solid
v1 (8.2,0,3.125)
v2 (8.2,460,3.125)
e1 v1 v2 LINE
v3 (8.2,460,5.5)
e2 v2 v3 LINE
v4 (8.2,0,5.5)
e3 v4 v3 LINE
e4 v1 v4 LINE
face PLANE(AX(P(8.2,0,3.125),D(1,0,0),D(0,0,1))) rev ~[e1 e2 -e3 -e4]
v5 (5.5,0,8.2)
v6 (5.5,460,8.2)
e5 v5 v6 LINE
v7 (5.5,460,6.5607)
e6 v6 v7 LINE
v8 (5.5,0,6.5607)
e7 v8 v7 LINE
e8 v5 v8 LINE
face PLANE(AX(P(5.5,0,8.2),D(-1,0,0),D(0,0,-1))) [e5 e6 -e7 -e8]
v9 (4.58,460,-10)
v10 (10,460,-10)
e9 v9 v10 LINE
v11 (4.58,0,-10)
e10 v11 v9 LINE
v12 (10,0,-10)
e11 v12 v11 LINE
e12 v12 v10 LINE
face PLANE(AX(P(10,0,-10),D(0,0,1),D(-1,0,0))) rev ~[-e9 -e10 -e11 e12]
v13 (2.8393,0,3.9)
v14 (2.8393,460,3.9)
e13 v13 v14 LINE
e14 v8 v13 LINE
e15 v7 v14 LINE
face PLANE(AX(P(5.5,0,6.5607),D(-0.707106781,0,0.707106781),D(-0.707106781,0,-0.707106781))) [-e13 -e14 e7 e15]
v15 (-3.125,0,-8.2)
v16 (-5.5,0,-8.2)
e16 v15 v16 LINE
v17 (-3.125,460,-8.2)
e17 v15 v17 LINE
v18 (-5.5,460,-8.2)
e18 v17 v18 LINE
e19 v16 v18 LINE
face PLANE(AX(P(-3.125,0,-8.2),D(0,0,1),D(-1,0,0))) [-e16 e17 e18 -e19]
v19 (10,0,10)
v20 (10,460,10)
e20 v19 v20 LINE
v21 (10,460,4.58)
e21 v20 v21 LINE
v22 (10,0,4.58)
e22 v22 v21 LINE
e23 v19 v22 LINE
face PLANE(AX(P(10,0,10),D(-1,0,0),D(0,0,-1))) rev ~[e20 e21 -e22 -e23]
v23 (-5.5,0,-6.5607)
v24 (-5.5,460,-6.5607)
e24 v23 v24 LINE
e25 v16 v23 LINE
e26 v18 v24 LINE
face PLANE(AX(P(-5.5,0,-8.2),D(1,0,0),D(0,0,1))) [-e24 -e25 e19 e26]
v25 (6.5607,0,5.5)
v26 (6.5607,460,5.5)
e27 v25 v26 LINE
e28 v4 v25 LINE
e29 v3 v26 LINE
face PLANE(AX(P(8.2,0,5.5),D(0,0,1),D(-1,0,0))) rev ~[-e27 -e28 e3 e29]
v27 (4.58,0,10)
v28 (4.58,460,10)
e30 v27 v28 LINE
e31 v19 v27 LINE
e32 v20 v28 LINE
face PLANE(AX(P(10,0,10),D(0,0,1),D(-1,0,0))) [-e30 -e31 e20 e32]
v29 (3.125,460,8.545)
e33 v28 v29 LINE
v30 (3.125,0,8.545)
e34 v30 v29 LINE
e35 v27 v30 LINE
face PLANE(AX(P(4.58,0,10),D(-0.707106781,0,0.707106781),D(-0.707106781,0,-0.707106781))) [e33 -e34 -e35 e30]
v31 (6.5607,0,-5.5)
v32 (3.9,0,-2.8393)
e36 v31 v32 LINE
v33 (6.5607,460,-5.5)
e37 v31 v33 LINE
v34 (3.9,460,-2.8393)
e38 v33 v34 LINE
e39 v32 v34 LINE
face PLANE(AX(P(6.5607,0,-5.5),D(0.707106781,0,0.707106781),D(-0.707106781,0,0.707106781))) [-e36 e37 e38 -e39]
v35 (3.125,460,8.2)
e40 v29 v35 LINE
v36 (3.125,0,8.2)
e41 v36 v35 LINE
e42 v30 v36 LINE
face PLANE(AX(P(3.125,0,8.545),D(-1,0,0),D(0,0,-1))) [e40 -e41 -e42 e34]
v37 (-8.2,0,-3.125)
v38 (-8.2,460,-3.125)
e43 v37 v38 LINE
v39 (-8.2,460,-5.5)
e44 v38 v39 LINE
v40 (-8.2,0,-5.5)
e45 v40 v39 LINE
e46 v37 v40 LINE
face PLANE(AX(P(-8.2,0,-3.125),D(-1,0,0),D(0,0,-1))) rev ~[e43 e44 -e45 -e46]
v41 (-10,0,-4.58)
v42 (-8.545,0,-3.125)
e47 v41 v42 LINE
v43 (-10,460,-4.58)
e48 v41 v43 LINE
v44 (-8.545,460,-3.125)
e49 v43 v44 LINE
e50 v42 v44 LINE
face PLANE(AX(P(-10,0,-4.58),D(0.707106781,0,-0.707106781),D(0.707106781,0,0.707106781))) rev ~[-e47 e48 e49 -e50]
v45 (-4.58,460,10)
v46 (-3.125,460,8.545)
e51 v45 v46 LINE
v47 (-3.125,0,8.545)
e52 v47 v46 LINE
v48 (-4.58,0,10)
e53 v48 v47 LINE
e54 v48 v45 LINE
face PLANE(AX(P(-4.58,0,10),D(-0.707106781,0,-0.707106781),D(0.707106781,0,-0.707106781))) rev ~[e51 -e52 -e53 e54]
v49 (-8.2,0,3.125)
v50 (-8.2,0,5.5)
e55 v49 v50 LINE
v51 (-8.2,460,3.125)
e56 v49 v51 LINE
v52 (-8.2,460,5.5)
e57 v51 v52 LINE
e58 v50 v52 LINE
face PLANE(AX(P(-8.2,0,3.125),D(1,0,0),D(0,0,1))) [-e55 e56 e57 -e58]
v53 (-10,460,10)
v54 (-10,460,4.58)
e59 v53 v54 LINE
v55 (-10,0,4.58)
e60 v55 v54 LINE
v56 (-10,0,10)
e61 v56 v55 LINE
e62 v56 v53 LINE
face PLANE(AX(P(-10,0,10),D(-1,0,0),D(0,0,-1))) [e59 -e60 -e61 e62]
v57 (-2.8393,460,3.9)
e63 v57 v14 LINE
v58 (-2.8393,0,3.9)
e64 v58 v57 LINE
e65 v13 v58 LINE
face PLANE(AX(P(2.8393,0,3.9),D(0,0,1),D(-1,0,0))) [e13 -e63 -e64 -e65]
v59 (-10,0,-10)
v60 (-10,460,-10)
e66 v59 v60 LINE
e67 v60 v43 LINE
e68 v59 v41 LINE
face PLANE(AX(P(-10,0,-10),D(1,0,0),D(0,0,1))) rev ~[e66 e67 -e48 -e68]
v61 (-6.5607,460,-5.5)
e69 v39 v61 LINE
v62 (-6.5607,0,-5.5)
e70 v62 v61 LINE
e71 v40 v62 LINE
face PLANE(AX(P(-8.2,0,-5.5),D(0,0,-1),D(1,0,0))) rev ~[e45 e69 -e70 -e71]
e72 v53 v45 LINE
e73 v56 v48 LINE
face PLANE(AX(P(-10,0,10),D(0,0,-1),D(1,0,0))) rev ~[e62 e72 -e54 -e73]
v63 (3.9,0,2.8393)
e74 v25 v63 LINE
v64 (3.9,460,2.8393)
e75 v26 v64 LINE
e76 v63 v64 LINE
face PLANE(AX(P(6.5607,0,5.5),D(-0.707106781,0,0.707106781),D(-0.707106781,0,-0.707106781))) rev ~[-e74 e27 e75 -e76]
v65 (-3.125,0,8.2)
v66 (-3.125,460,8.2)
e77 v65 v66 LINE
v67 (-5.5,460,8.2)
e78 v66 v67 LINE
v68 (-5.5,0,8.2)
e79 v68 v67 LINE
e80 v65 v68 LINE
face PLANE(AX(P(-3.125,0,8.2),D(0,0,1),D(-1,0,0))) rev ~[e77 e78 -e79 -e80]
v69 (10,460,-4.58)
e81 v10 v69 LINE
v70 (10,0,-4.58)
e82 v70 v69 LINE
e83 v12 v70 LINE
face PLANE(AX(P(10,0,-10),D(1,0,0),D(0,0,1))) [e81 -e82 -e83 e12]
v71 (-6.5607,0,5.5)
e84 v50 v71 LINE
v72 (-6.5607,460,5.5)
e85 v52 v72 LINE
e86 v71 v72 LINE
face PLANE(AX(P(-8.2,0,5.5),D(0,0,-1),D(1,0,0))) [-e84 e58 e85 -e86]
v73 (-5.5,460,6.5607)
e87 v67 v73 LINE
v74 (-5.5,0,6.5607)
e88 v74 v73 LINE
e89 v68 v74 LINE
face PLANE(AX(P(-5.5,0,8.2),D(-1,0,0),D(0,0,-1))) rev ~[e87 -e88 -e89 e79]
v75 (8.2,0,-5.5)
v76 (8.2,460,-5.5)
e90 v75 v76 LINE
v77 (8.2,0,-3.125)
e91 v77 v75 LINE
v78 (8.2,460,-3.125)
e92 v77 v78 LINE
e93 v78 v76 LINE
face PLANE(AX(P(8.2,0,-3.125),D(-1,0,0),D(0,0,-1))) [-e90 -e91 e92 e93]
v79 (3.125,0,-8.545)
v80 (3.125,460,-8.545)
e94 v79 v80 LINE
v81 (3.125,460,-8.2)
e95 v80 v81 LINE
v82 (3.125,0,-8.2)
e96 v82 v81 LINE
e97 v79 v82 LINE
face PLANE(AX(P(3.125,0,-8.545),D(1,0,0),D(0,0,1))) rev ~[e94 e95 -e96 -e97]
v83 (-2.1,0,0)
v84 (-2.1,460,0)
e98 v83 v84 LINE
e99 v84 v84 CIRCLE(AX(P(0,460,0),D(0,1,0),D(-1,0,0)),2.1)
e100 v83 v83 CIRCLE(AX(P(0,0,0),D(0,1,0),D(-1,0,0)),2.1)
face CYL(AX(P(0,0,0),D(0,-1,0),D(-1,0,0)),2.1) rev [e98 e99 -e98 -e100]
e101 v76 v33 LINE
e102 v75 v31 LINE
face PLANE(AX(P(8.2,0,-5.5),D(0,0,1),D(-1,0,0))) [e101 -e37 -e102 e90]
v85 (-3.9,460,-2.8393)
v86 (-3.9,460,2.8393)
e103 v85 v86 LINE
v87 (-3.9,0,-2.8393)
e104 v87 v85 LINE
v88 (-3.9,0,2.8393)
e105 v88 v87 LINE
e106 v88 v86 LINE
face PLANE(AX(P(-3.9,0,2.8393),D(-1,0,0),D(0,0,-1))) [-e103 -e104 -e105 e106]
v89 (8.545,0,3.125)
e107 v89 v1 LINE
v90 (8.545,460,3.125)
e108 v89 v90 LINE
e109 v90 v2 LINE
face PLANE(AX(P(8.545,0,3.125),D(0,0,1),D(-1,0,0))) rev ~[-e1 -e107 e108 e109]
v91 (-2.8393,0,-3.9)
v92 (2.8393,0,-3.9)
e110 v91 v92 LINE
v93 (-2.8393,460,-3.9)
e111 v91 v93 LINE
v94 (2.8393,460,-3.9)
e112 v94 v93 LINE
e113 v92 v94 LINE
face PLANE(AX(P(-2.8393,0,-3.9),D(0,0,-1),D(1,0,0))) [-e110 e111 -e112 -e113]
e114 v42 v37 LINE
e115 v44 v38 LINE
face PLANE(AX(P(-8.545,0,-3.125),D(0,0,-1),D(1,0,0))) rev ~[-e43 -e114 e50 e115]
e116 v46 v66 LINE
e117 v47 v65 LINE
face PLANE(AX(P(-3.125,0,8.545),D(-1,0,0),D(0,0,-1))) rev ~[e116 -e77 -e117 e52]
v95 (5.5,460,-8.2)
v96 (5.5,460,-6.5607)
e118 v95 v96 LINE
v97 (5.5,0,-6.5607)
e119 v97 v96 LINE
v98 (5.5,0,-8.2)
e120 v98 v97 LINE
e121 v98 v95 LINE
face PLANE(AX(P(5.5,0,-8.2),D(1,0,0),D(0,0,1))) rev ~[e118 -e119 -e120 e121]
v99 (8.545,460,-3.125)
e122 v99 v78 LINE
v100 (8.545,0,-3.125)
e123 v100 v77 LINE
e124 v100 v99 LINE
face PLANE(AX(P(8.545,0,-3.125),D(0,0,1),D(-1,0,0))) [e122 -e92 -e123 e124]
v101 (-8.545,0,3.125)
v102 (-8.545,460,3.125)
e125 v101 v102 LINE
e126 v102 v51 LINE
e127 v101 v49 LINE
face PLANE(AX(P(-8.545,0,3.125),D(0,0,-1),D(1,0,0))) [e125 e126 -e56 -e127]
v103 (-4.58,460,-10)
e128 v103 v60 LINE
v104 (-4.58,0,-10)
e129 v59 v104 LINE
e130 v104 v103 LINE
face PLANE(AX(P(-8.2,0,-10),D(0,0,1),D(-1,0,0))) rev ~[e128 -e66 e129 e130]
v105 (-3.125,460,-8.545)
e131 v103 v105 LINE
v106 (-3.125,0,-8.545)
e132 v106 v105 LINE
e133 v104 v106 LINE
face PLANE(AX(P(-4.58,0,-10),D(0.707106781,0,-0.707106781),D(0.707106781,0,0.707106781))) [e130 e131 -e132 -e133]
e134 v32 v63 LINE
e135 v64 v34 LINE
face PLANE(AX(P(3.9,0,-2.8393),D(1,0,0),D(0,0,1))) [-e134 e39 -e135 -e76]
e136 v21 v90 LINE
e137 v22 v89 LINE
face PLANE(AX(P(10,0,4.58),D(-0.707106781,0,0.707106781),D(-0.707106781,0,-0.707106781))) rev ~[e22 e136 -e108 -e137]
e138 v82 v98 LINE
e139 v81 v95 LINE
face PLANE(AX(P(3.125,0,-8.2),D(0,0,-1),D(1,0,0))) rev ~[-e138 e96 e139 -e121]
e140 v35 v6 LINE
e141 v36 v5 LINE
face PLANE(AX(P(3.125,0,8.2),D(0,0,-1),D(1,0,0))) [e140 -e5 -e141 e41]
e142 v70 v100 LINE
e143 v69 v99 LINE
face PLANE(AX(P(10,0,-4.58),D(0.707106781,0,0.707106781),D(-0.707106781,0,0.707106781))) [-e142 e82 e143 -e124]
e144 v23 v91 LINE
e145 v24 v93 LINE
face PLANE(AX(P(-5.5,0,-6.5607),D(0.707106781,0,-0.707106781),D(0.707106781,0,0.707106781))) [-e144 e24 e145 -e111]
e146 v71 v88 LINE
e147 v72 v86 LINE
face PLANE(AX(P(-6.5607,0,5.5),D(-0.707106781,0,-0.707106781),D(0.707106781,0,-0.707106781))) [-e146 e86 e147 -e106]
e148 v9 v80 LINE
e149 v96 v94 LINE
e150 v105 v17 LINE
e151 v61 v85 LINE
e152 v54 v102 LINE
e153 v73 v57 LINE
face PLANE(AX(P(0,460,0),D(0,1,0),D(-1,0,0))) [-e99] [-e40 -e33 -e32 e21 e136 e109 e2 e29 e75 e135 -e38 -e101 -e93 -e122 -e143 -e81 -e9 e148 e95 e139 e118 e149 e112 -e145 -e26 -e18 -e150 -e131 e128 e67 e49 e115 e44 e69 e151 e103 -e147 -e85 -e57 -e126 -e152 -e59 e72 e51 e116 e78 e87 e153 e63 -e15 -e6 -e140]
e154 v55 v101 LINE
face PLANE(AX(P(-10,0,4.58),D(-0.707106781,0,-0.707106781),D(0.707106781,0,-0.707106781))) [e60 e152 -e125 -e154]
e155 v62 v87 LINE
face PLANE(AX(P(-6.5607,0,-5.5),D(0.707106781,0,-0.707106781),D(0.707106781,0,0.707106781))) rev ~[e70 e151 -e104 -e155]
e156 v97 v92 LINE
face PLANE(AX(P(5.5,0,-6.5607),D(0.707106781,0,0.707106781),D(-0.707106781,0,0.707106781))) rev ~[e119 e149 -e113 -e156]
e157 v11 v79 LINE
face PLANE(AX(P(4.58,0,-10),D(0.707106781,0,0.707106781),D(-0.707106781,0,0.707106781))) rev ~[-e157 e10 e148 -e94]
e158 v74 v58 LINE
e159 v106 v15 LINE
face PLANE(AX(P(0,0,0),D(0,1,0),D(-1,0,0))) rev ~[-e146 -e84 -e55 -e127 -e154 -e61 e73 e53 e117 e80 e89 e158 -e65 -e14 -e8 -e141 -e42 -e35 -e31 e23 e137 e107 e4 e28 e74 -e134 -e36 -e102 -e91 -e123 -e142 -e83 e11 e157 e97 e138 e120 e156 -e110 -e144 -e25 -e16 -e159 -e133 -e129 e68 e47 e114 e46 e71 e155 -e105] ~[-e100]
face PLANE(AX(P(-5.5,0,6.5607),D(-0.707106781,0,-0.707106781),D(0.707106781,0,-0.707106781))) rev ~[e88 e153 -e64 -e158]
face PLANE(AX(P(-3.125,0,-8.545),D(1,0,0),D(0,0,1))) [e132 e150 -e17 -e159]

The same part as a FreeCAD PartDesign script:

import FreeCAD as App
import Part
import Sketcher
from FreeCAD import Vector
Q = App.Units.Quantity


def add_polygon(sketch, points):
    """Adds a closed chain of lines whose ends are joined by coincident constraints."""
    first, n = sketch.GeometryCount, len(points)
    for a, b in zip(points, points[1:] + points[:1]):
        sketch.addGeometry(Part.LineSegment(App.Vector(*a, 0), App.Vector(*b, 0)), False)
    for i in range(n):
        sketch.addConstraint(Sketcher.Constraint("Coincident", first + i, 2, first + (i + 1) % n, 1))

doc = App.newDocument("Part")
body = doc.addObject("PartDesign::Body", "Body")

sketch1 = body.newObject("Sketcher::SketchObject", "Sketch")
sketch1.AttachmentSupport = (doc.getObject("XZ_Plane"), [""])
sketch1.MapMode = "FlatFace"
add_polygon(sketch1, [(10, -4.58), (10, -10), (4.58, -10), (3.125, -8.545), (3.125, -8.2), (5.5, -8.2), (5.5, -6.5607), (2.8393, -3.9), (-2.8393, -3.9), (-5.5, -6.5607), (-5.5, -8.2), (-3.125, -8.2), (-3.125, -8.545), (-4.58, -10), (-10, -10), (-10, -4.58), (-8.545, -3.125), (-8.2, -3.125), (-8.2, -5.5), (-6.5607, -5.5), (-3.9, -2.8393), (-3.9, 2.8393), (-6.5607, 5.5), (-8.2, 5.5), (-8.2, 3.125), (-8.545, 3.125), (-10, 4.58), (-10, 10), (-4.58, 10), (-3.125, 8.545), (-3.125, 8.2), (-5.5, 8.2), (-5.5, 6.5607), (-2.8393, 3.9), (2.8393, 3.9), (5.5, 6.5607), (5.5, 8.2), (3.125, 8.2), (3.125, 8.545), (4.58, 10), (10, 10), (10, 4.58), (8.545, 3.125), (8.2, 3.125), (8.2, 5.5), (6.5607, 5.5), (3.9, 2.8393), (3.9, -2.8393), (6.5607, -5.5), (8.2, -5.5), (8.2, -3.125), (8.545, -3.125)])
sketch1.addGeometry(Part.Circle(Vector(0, 0, 0), Vector(0, 0, 1), 2.1), False)
sketch1.addConstraint([
    Sketcher.Constraint("Vertical", 0),
    Sketcher.Constraint("Horizontal", 1),
    Sketcher.Constraint("Vertical", 3),
    Sketcher.Constraint("Horizontal", 4),
    Sketcher.Constraint("Vertical", 5),
    Sketcher.Constraint("Horizontal", 7),
    Sketcher.Constraint("Vertical", 9),
    Sketcher.Constraint("Horizontal", 10),
    Sketcher.Constraint("Vertical", 11),
    Sketcher.Constraint("Horizontal", 13),
    Sketcher.Constraint("Vertical", 14),
    Sketcher.Constraint("Horizontal", 16),
    Sketcher.Constraint("Vertical", 17),
    Sketcher.Constraint("Horizontal", 18),
    Sketcher.Constraint("Vertical", 20),
    Sketcher.Constraint("Horizontal", 22),
    Sketcher.Constraint("Vertical", 23),
    Sketcher.Constraint("Horizontal", 24),
    Sketcher.Constraint("Vertical", 26),
    Sketcher.Constraint("Horizontal", 27),
    Sketcher.Constraint("Vertical", 29),
    Sketcher.Constraint("Horizontal", 30),
    Sketcher.Constraint("Vertical", 31),
    Sketcher.Constraint("Horizontal", 33),
    Sketcher.Constraint("Vertical", 35),
    Sketcher.Constraint("Horizontal", 36),
    Sketcher.Constraint("Vertical", 37),
    Sketcher.Constraint("Horizontal", 39),
    Sketcher.Constraint("Vertical", 40),
    Sketcher.Constraint("Horizontal", 42),
    Sketcher.Constraint("Vertical", 43),
    Sketcher.Constraint("Horizontal", 44),
    Sketcher.Constraint("Vertical", 46),
    Sketcher.Constraint("Horizontal", 48),
    Sketcher.Constraint("Vertical", 49),
    Sketcher.Constraint("Horizontal", 50),
    Sketcher.Constraint("Coincident", 52, 3, -1, 1),
    Sketcher.Constraint("Symmetric", 0, 2, 26, 2, -1, 1),
    Sketcher.Constraint("Symmetric", 2, 2, 28, 2, -1, 1),
    Sketcher.Constraint("Symmetric", 4, 2, 30, 2, -1, 1),
    Sketcher.Constraint("Symmetric", 6, 2, 32, 2, -1, 1),
    Sketcher.Constraint("Symmetric", 8, 2, 34, 2, -1, 1),
    Sketcher.Constraint("Symmetric", 10, 2, 36, 2, -1, 1),
    Sketcher.Constraint("Symmetric", 12, 2, 38, 2, -1, 1),
    Sketcher.Constraint("Symmetric", 14, 2, 40, 2, -1, 1),
    Sketcher.Constraint("Symmetric", 15, 2, 41, 2, -1, 1),
    Sketcher.Constraint("Symmetric", 17, 2, 43, 2, -1, 1),
    Sketcher.Constraint("Symmetric", 19, 2, 45, 2, -1, 1),
    Sketcher.Constraint("Symmetric", 21, 2, 47, 2, -1, 1),
    Sketcher.Constraint("Symmetric", 23, 2, 49, 2, -1, 1),
    Sketcher.Constraint("Symmetric", 5, 2, 8, 2, -2),
    Sketcher.Constraint("Symmetric", 3, 2, 10, 2, -2),
    Sketcher.Constraint("Symmetric", 1, 2, 12, 2, -2),
    Sketcher.Constraint("Symmetric", 25, 2, 40, 2, -2),
    Sketcher.Constraint("Symmetric", 24, 2, 41, 2, -2),
    Sketcher.Constraint("Symmetric", 22, 2, 43, 2, -2),
    Sketcher.Constraint("Parallel", 2, 6),
    Sketcher.Constraint("Perpendicular", 6, 8),
    Sketcher.Constraint("Parallel", 8, 12),
    Sketcher.Constraint("Parallel", 12, 15),
    Sketcher.Constraint("Parallel", 15, 19),
    Sketcher.Constraint("Perpendicular", 19, 21),
    Sketcher.Constraint("Parallel", 21, 25),
    Sketcher.Constraint("Parallel", 25, 28),
    Sketcher.Constraint("Parallel", 28, 32),
    Sketcher.Constraint("Perpendicular", 32, 34),
    Sketcher.Constraint("Parallel", 34, 38),
    Sketcher.Constraint("Parallel", 41, 45),
    Sketcher.Constraint("Perpendicular", 45, 47),
    Sketcher.Constraint("Parallel", 47, 51),
    Sketcher.Constraint("Horizontal", 20, 2, 45, 2),
    Sketcher.Constraint("Horizontal", 14, 2, 51, 2),
    Sketcher.Constraint("Equal", 39, 0),
    Sketcher.Constraint("Equal", 50, 3),
    Sketcher.Constraint("Equal", 48, 5),
    Sketcher.Constraint("Equal", 36, 17),
    Sketcher.Constraint("Equal", 33, 20),
    Sketcher.Constraint("Equal", 12, 15),
    Sketcher.Constraint("Equal", 8, 19),
    Sketcher.Constraint("Diameter", 52, Q("4.2 mm")),
    Sketcher.Constraint("DistanceY", 1, 2, 3, 2, Q("1.8 mm")),
    Sketcher.Constraint("DistanceY", 3, 2, 6, 2, Q("4.3 mm")),
    Sketcher.Constraint("DistanceX", 10, 2, 3, 2, Q("6.25 mm")),
    Sketcher.Constraint("DistanceX", -1, 1, 0, 2, Q("10 mm")),
    Sketcher.Constraint("DistanceX", 1, 2, 1, 1, Q("5.42 mm")),
    Sketcher.Constraint("DistanceX", -1, 1, 4, 2, Q("5.5 mm")),
    Sketcher.Constraint("DistanceX", 7, 2, 7, 1, Q("5.6786 mm")),
])
pad1 = body.newObject("PartDesign::Pad", "Pad")
pad1.Profile = sketch1
pad1.Length = 460
pad1.Reversed = True

doc.recompute()
